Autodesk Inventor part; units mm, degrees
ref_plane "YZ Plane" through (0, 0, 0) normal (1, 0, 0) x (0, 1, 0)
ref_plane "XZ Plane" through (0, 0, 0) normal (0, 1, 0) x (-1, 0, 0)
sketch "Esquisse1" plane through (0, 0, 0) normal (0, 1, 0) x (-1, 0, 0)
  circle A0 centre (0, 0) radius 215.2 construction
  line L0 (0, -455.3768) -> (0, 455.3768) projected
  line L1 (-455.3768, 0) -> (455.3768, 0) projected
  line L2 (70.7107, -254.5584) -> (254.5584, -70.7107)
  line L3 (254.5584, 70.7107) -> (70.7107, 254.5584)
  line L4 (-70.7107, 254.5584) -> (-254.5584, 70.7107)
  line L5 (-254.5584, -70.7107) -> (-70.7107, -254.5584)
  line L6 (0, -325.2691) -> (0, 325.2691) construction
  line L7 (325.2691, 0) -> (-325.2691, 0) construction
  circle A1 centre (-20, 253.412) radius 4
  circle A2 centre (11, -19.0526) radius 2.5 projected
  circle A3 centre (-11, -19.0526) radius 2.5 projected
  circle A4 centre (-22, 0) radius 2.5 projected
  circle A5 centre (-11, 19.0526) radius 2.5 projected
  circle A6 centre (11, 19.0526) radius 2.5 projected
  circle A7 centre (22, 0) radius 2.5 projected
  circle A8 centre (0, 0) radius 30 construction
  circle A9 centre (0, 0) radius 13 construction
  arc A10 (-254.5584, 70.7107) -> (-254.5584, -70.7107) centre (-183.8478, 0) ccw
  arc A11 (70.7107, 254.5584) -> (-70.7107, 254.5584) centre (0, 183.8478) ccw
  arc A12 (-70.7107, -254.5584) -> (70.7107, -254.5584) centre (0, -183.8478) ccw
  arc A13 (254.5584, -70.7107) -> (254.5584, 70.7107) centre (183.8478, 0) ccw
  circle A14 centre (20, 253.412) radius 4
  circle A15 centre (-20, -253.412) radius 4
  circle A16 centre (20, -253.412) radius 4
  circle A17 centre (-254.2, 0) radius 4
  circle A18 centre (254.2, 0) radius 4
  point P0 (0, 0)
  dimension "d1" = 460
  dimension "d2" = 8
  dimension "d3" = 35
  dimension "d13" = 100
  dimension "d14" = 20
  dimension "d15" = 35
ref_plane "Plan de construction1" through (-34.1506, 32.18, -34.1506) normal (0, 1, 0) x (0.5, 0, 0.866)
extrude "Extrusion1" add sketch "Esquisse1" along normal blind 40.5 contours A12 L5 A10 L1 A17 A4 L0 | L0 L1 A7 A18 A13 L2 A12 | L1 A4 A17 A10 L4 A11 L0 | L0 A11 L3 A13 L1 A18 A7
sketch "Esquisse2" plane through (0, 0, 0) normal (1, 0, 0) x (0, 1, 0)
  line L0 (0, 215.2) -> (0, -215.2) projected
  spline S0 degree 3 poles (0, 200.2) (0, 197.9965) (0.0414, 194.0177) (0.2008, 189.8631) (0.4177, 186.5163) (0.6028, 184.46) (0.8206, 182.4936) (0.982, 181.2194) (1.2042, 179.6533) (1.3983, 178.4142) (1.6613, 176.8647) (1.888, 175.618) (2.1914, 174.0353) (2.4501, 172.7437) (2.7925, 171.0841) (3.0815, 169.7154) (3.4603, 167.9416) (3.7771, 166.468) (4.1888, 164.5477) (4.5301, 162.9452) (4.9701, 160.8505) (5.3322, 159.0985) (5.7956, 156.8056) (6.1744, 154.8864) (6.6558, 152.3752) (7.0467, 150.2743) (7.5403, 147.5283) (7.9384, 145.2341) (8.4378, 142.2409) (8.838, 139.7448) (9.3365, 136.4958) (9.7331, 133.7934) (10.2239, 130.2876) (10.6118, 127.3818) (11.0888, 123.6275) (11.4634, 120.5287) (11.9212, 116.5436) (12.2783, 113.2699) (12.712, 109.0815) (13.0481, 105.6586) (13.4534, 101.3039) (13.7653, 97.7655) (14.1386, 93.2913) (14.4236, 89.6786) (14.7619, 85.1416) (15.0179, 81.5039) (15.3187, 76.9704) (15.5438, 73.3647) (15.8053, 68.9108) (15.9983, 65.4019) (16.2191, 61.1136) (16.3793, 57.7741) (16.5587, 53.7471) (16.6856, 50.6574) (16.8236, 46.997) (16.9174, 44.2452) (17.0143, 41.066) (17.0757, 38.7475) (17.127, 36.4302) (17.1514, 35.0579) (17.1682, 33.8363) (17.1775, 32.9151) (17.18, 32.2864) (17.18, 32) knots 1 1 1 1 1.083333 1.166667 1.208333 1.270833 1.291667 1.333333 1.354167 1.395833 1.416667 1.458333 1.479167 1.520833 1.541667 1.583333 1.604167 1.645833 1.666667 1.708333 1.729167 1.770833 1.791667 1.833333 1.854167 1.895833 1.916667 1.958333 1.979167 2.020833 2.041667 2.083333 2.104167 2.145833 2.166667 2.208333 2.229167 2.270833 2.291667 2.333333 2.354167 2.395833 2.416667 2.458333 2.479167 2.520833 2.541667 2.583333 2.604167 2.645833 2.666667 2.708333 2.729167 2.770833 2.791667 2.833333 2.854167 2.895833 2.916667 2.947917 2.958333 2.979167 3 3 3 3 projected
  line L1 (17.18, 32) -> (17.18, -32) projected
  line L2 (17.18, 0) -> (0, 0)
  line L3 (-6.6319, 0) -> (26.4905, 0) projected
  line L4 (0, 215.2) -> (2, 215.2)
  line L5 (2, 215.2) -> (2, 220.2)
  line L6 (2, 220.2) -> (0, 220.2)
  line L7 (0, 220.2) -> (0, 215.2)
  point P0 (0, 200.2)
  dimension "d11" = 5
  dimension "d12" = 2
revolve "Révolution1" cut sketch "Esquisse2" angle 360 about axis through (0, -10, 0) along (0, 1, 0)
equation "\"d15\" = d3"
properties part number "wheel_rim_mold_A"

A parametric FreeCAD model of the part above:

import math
import FreeCAD as App
import Part
import Sketcher
from FreeCAD import Vector
Q = App.Units.Quantity

doc = App.newDocument("Part")
body = doc.addObject("PartDesign::Body", "Body")

# Sketch on XZ plane
sketch1 = body.newObject("Sketcher::SketchObject", "Sketch")
sketch1.AttachmentSupport = (doc.getObject("XZ_Plane"), [""])
sketch1.MapMode = "FlatFace"
sketch1.addGeometry(Part.ArcOfCircle(Part.Circle(Vector(0, -183.8, 0), Vector(0, 0, 1), 100), math.radians(-135), math.radians(-45)), False)
sketch1.addGeometry(Part.LineSegment(Vector(-70.7, -254.6, 0), Vector(-254.6, -70.7, 0)), False)
sketch1.addGeometry(Part.ArcOfCircle(Part.Circle(Vector(-183.8, 0, 0), Vector(0, 0, 1), 100), math.radians(135), math.radians(225)), False)
sketch1.addGeometry(Part.LineSegment(Vector(-254.6, 70.7, 0), Vector(-70.7, 254.6, 0)), False)
sketch1.addGeometry(Part.ArcOfCircle(Part.Circle(Vector(0, 183.8, 0), Vector(0, 0, 1), 100), math.radians(45), math.radians(135)), False)
sketch1.addGeometry(Part.LineSegment(Vector(70.7, 254.6, 0), Vector(254.6, 70.7, 0)), False)
sketch1.addGeometry(Part.ArcOfCircle(Part.Circle(Vector(183.8, 0, 0), Vector(0, 0, 1), 100), math.radians(-45), math.radians(45)), False)
sketch1.addGeometry(Part.LineSegment(Vector(254.6, -70.7, 0), Vector(70.7, -254.6, 0)), False)
sketch1.addGeometry(Part.Circle(Vector(254.2, 0, 0), Vector(0, 0, 1), 4), False)
sketch1.addGeometry(Part.Circle(Vector(22, 0, 0), Vector(0, 0, 1), 2.5), False)
sketch1.addGeometry(Part.Circle(Vector(20, -253.4, 0), Vector(0, 0, 1), 4), False)
sketch1.addGeometry(Part.Circle(Vector(11, -19.1, 0), Vector(0, 0, 1), 2.5), False)
sketch1.addGeometry(Part.Circle(Vector(11, 19.1, 0), Vector(0, 0, 1), 2.5), False)
sketch1.addGeometry(Part.Circle(Vector(20, 253.4, 0), Vector(0, 0, 1), 4), False)
sketch1.addGeometry(Part.Circle(Vector(-11, -19.1, 0), Vector(0, 0, 1), 2.5), False)
sketch1.addGeometry(Part.Circle(Vector(-22, 0, 0), Vector(0, 0, 1), 2.5), False)
sketch1.addGeometry(Part.Circle(Vector(-254.2, 0, 0), Vector(0, 0, 1), 4), False)
sketch1.addGeometry(Part.Circle(Vector(-20, -253.4, 0), Vector(0, 0, 1), 4), False)
sketch1.addGeometry(Part.Circle(Vector(-20, 253.4, 0), Vector(0, 0, 1), 4), False)
sketch1.addGeometry(Part.Circle(Vector(-11, 19.1, 0), Vector(0, 0, 1), 2.5), False)
sketch1.addConstraint(Sketcher.Constraint("Tangent", 0, 1, 1, 1))
sketch1.addConstraint(Sketcher.Constraint("Tangent", 1, 2, 2, 2))
sketch1.addConstraint(Sketcher.Constraint("Tangent", 2, 1, 3, 1))
sketch1.addConstraint(Sketcher.Constraint("Tangent", 3, 2, 4, 2))
sketch1.addConstraint(Sketcher.Constraint("Tangent", 4, 1, 5, 1))
sketch1.addConstraint(Sketcher.Constraint("Tangent", 5, 2, 6, 2))
sketch1.addConstraint(Sketcher.Constraint("Tangent", 6, 1, 7, 1))
sketch1.addConstraint(Sketcher.Constraint("Tangent", 7, 2, 0, 2))
sketch1.addConstraint(Sketcher.Constraint("Equal", 0, 2))
sketch1.addConstraint(Sketcher.Constraint("Equal", 2, 4))
sketch1.addConstraint(Sketcher.Constraint("Equal", 4, 6))
sketch1.addConstraint(Sketcher.Constraint("Equal", 8, 10))
sketch1.addConstraint(Sketcher.Constraint("Equal", 9, 11))
sketch1.addConstraint(Sketcher.Constraint("Equal", 11, 12))
sketch1.addConstraint(Sketcher.Constraint("Equal", 10, 13))
sketch1.addConstraint(Sketcher.Constraint("Equal", 12, 14))
sketch1.addConstraint(Sketcher.Constraint("Equal", 14, 15))
sketch1.addConstraint(Sketcher.Constraint("Equal", 13, 16))
sketch1.addConstraint(Sketcher.Constraint("Equal", 16, 17))
sketch1.addConstraint(Sketcher.Constraint("Equal", 17, 18))
sketch1.addConstraint(Sketcher.Constraint("Equal", 15, 19))
sketch1.addConstraint(Sketcher.Constraint("Symmetric", 0, 3, 4, 3, -1, 1))
sketch1.addConstraint(Sketcher.Constraint("Symmetric", 2, 3, 6, 3, -1, 1))
sketch1.addConstraint(Sketcher.Constraint("Symmetric", 12, 3, 14, 3, -1, 1))
sketch1.addConstraint(Sketcher.Constraint("Symmetric", 9, 3, 15, 3, -1, 1))
sketch1.addConstraint(Sketcher.Constraint("Symmetric", 8, 3, 16, 3, -1, 1))
sketch1.addConstraint(Sketcher.Constraint("Symmetric", 13, 3, 17, 3, -1, 1))
sketch1.addConstraint(Sketcher.Constraint("Symmetric", 10, 3, 18, 3, -1, 1))
sketch1.addConstraint(Sketcher.Constraint("Symmetric", 11, 3, 19, 3, -1, 1))
sketch1.addConstraint(Sketcher.Constraint("Symmetric", 11, 3, 14, 3, -2))
sketch1.addConstraint(Sketcher.Constraint("Symmetric", 10, 3, 17, 3, -2))
sketch1.addConstraint(Sketcher.Constraint("Symmetric", 2, 1, 5, 2, -2))
sketch1.addConstraint(Sketcher.Constraint("PointOnObject", 8, 3, -1))
sketch1.addConstraint(Sketcher.Constraint("PointOnObject", 9, 3, -1))
sketch1.addConstraint(Sketcher.Constraint("Perpendicular", 1, 3))
sketch1.addConstraint(Sketcher.Constraint("Diameter", 8, Q("8 mm")))
sketch1.addConstraint(Sketcher.Constraint("Radius", 0, Q("100 mm")))
sketch1.addConstraint(Sketcher.Constraint("Diameter", 9, Q("5 mm")))
sketch1.addConstraint(Sketcher.Constraint("DistanceX", -1, 1, 10, 3, Q("20 mm")))
sketch1.addConstraint(Sketcher.Constraint("Distance", 1, Q("260 mm")))
sketch1.addConstraint(Sketcher.Constraint("DistanceX", -1, 1, 9, 3, Q("22 mm")))
sketch1.addConstraint(Sketcher.Constraint("DistanceX", -1, 1, 11, 3, Q("11 mm")))
sketch1.addConstraint(Sketcher.Constraint("DistanceX", -1, 1, 8, 3, Q("254.2 mm")))
sketch1.addConstraint(Sketcher.Constraint("DistanceY", 10, 3, -1, 1, Q("253.412 mm")))
sketch1.addConstraint(Sketcher.Constraint("DistanceY", 1, 2, 14, 3, Q("51.658 mm")))
pad1 = body.newObject("PartDesign::Pad", "Pad")
pad1.Profile = sketch1
pad1.Length = 40.5
pad1.Reversed = True

# Sketch on YZ plane
sketch2 = body.newObject("Sketcher::SketchObject", "Sketch001")
sketch2.AttachmentSupport = (doc.getObject("YZ_Plane"), [""])
sketch2.MapMode = "FlatFace"
sketch2.addGeometry(Part.BSplineCurve([Vector(0, 200.2, 0), Vector(0, 197.9965, 0), Vector(0.0414, 194.0177, 0), Vector(0.2008, 189.8631, 0), Vector(0.4177, 186.5163, 0), Vector(0.6028, 184.46, 0), Vector(0.8206, 182.4936, 0), Vector(0.982, 181.2194, 0), Vector(1.2042, 179.6533, 0), Vector(1.3983, 178.4142, 0), Vector(1.6613, 176.8647, 0), Vector(1.888, 175.618, 0), Vector(2.1914, 174.0353, 0), Vector(2.4501, 172.7437, 0), Vector(2.7925, 171.0841, 0), Vector(3.0815, 169.7154, 0), Vector(3.4603, 167.9416, 0), Vector(3.7771, 166.468, 0), Vector(4.1888, 164.5477, 0), Vector(4.5301, 162.9452, 0), Vector(4.9701, 160.8505, 0), Vector(5.3322, 159.0985, 0), Vector(5.7956, 156.8056, 0), Vector(6.1744, 154.8864, 0), Vector(6.6558, 152.3752, 0), Vector(7.0467, 150.2743, 0), Vector(7.5403, 147.5283, 0), Vector(7.9384, 145.2341, 0), Vector(8.4378, 142.2409, 0), Vector(8.838, 139.7448, 0), Vector(9.3365, 136.4958, 0), Vector(9.7331, 133.7934, 0), Vector(10.2239, 130.2876, 0), Vector(10.6118, 127.3818, 0), Vector(11.0888, 123.6275, 0), Vector(11.4634, 120.5287, 0), Vector(11.9212, 116.5436, 0), Vector(12.2783, 113.2699, 0), Vector(12.712, 109.0815, 0), Vector(13.0481, 105.6586, 0), Vector(13.4534, 101.3039, 0), Vector(13.7653, 97.7655, 0), Vector(14.1386, 93.2913, 0), Vector(14.4236, 89.6786, 0), Vector(14.7619, 85.1416, 0), Vector(15.0179, 81.5039, 0), Vector(15.3187, 76.9704, 0), Vector(15.5438, 73.3647, 0), Vector(15.8053, 68.9108, 0), Vector(15.9983, 65.4019, 0), Vector(16.2191, 61.1136, 0), Vector(16.3793, 57.7741, 0), Vector(16.5587, 53.7471, 0), Vector(16.6856, 50.6574, 0), Vector(16.8236, 46.997, 0), Vector(16.9174, 44.2452, 0), Vector(17.0143, 41.066, 0), Vector(17.0757, 38.7475, 0), Vector(17.127, 36.4302, 0), Vector(17.1514, 35.0579, 0), Vector(17.1682, 33.8363, 0), Vector(17.1775, 32.9151, 0), Vector(17.18, 32.2864, 0), Vector(17.18, 32, 0)], [4, 1, 1, 1, 1, 1, 1, 1, 1, 1, 1, 1, 1, 1, 1, 1, 1, 1, 1, 1, 1, 1, 1, 1, 1, 1, 1, 1, 1, 1, 1, 1, 1, 1, 1, 1, 1, 1, 1, 1, 1, 1, 1, 1, 1, 1, 1, 1, 1, 1, 1, 1, 1, 1, 1, 1, 1, 1, 1, 1, 1, 4], [1, 1.083333, 1.166667, 1.208333, 1.270833, 1.291667, 1.333333, 1.354167, 1.395833, 1.416667, 1.458333, 1.479167, 1.520833, 1.541667, 1.583333, 1.604167, 1.645833, 1.666667, 1.708333, 1.729167, 1.770833, 1.791667, 1.833333, 1.854167, 1.895833, 1.916667, 1.958333, 1.979167, 2.020833, 2.041667, 2.083333, 2.104167, 2.145833, 2.166667, 2.208333, 2.229167, 2.270833, 2.291667, 2.333333, 2.354167, 2.395833, 2.416667, 2.458333, 2.479167, 2.520833, 2.541667, 2.583333, 2.604167, 2.645833, 2.666667, 2.708333, 2.729167, 2.770833, 2.791667, 2.833333, 2.854167, 2.895833, 2.916667, 2.947917, 2.958333, 2.979167, 3], False, 3, [1, 1, 1, 1, 1, 1, 1, 1, 1, 1, 1, 1, 1, 1, 1, 1, 1, 1, 1, 1, 1, 1, 1, 1, 1, 1, 1, 1, 1, 1, 1, 1, 1, 1, 1, 1, 1, 1, 1, 1, 1, 1, 1, 1, 1, 1, 1, 1, 1, 1, 1, 1, 1, 1, 1, 1, 1, 1, 1, 1, 1, 1, 1, 1], False), False)
sketch2.addGeometry(Part.LineSegment(Vector(0, 200.2, 0), Vector(0, 0, 0)), False)
sketch2.addGeometry(Part.LineSegment(Vector(0, 0, 0), Vector(17.18, 0, 0)), False)
sketch2.addGeometry(Part.LineSegment(Vector(17.18, 0, 0), Vector(17.18, 32, 0)), False)
sketch2.addGeometry(Part.LineSegment(Vector(0, 220.2, 0), Vector(0, 215.2, 0)), False)
sketch2.addGeometry(Part.LineSegment(Vector(0, 215.2, 0), Vector(2, 215.2, 0)), False)
sketch2.addGeometry(Part.LineSegment(Vector(2, 215.2, 0), Vector(2, 220.2, 0)), False)
sketch2.addGeometry(Part.LineSegment(Vector(2, 220.2, 0), Vector(0, 220.2, 0)), False)
sketch2.addConstraint(Sketcher.Constraint("Block", 0))
sketch2.addConstraint(Sketcher.Constraint("Coincident", 0, 1, 1, 1))
sketch2.addConstraint(Sketcher.Constraint("Coincident", 1, 2, 2, 1))
sketch2.addConstraint(Sketcher.Constraint("Coincident", 2, 2, 3, 1))
sketch2.addConstraint(Sketcher.Constraint("Coincident", 3, 2, 0, 2))
sketch2.addConstraint(Sketcher.Constraint("Coincident", 4, 2, 5, 1))
sketch2.addConstraint(Sketcher.Constraint("Coincident", 5, 2, 6, 1))
sketch2.addConstraint(Sketcher.Constraint("Coincident", 6, 2, 7, 1))
sketch2.addConstraint(Sketcher.Constraint("Coincident", 7, 2, 4, 1))
sketch2.addConstraint(Sketcher.Constraint("Vertical", 1))
sketch2.addConstraint(Sketcher.Constraint("Horizontal", 2))
sketch2.addConstraint(Sketcher.Constraint("Vertical", 3))
sketch2.addConstraint(Sketcher.Constraint("Vertical", 4))
sketch2.addConstraint(Sketcher.Constraint("Horizontal", 5))
sketch2.addConstraint(Sketcher.Constraint("Vertical", 6))
sketch2.addConstraint(Sketcher.Constraint("Horizontal", 7))
sketch2.addConstraint(Sketcher.Constraint("PointOnObject", 2, 2, -1))
sketch2.addConstraint(Sketcher.Constraint("PointOnObject", 4, 2, -2))
sketch2.addConstraint(Sketcher.Constraint("DistanceX", 5, 1, 5, 2, Q("2 mm")))
sketch2.addConstraint(Sketcher.Constraint("DistanceY", 4, 2, 4, 1, Q("5 mm")))
sketch2.addConstraint(Sketcher.Constraint("DistanceY", -1, 1, 4, 2, Q("215.2 mm")))
groove = body.newObject("PartDesign::Groove", "Groove")
groove.Profile = sketch2
groove.ReferenceAxis = (sketch2, ["H_Axis"])
groove.Angle = 360

doc.recompute()
